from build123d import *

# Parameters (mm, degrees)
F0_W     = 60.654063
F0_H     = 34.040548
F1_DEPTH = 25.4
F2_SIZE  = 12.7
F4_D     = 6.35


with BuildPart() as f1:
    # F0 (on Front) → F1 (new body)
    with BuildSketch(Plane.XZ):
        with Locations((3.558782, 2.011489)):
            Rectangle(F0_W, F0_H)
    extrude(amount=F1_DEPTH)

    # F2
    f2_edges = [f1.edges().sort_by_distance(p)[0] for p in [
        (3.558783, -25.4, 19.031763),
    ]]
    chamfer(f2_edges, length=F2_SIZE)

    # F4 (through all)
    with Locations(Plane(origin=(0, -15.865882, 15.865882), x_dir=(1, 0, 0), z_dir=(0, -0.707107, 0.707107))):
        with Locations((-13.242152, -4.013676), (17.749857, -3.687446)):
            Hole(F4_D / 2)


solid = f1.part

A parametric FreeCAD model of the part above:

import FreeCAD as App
import Part
import Sketcher

V = App.Vector
Q = App.Units.Quantity


def edges_at(feature, points):
    """Names of the edges that pass closest to the given points."""
    edges = feature.Shape.Edges
    near = lambda p: min(range(len(edges)), key=lambda i: edges[i].distToShape(Part.Vertex(*p))[0])
    return sorted({f"Edge{near(p) + 1}" for p in points})


def add_polygon(sketch, points):
    """Adds a closed chain of lines whose ends are joined by coincident constraints."""
    first, n = sketch.GeometryCount, len(points)
    for a, b in zip(points, points[1:] + points[:1]):
        sketch.addGeometry(Part.LineSegment(App.Vector(*a, 0), App.Vector(*b, 0)), False)
    for i in range(n):
        sketch.addConstraint(Sketcher.Constraint("Coincident", first + i, 2, first + (i + 1) % n, 1))

doc = App.newDocument("Part")
body = doc.addObject("PartDesign::Body", "Body")

sketch1 = doc.addObject("Sketcher::SketchObject", "Sketch")
body.addObject(sketch1)
sketch1.AttachmentSupport = (doc.XZ_Plane, [""])
sketch1.MapMode = "FlatFace"
add_polygon(sketch1, [(-26.768249, 19.031763), (-26.768249, -15.008785), (33.885813, -15.008785), (33.885813, 19.031763)])
sketch1.addConstraint(Sketcher.Constraint("Vertical", 0))
sketch1.addConstraint(Sketcher.Constraint("Horizontal", 1))
sketch1.addConstraint(Sketcher.Constraint("Vertical", 2))
sketch1.addConstraint(Sketcher.Constraint("Horizontal", 3))
sketch1.addConstraint(Sketcher.Constraint("DistanceX", 1, 1, 1, 2, 60.654063))
sketch1.addConstraint(Sketcher.Constraint("DistanceY", 0, 2, 0, 1, 34.040548))
sketch1.addConstraint(Sketcher.Constraint("DistanceX", 0, 2, -1, 1, 26.768249))
sketch1.addConstraint(Sketcher.Constraint("DistanceY", 0, 2, -1, 1, 15.008785))
pad1 = doc.addObject("PartDesign::Pad", "Pad")
body.addObject(pad1)
pad1.Profile = sketch1
pad1.Length = Q("1 in")
doc.recompute()

chamfer = doc.addObject("PartDesign::Chamfer", "Chamfer")
body.addObject(chamfer)
chamfer.Base = (pad1, edges_at(pad1, [(3.559, -25.4, 19.032)]))
chamfer.Size = Q("0.5 in")

sketch2 = doc.addObject("Sketcher::SketchObject", "Sketch001")
body.addObject(sketch2)
sketch2.Placement = App.Placement(V(0, -15.865882, 15.865882), App.Rotation(V(1, 0, 0), V(0, 0.707106781, 0.707106781), V(0, -0.707106781, 0.707106781), "ZXY"))
sketch2.addGeometry(Part.Circle(V(-13.242152, -4.013676, 0), V(0, 0, 1), 3.175), False)
sketch2.addGeometry(Part.Circle(V(17.749857, -3.687446, 0), V(0, 0, 1), 3.175), False)
sketch2.addConstraint(Sketcher.Constraint("Equal", 0, 1))
sketch2.addConstraint(Sketcher.Constraint("Diameter", 0, Q("0.25 in")))
sketch2.addConstraint(Sketcher.Constraint("DistanceX", 0, 3, 1, 3, 30.992009))
sketch2.addConstraint(Sketcher.Constraint("DistanceY", 0, 3, 1, 3, 0.32623))
sketch2.addConstraint(Sketcher.Constraint("DistanceX", 0, 3, -1, 1, 13.242152))
sketch2.addConstraint(Sketcher.Constraint("DistanceY", 0, 3, -1, 1, 4.013676))
doc.recompute()
hole = doc.addObject("PartDesign::Hole", "Hole")
body.addObject(hole)
hole.Profile = sketch2
hole.ThreadType = "None"
hole.Diameter = Q("0.25 in")
hole.DepthType = "ThroughAll"

doc.recompute()
